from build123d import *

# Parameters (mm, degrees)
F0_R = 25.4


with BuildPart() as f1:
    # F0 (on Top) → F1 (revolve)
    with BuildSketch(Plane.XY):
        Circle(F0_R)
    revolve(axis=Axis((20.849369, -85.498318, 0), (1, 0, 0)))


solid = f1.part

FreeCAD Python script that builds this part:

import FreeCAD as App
import Part
import Sketcher
from FreeCAD import Vector
Q = App.Units.Quantity

doc = App.newDocument("Part")
body = doc.addObject("PartDesign::Body", "Body")

# Sketch on XY plane
sketch1 = body.newObject("Sketcher::SketchObject", "Sketch")
sketch1.AttachmentSupport = (doc.getObject("XY_Plane"), [""])
sketch1.MapMode = "FlatFace"
sketch1.addGeometry(Part.Circle(Vector(0, 0, 0), Vector(0, 0, 1), 25), False)
sketch1.addGeometry(Part.LineSegment(Vector(0, -85, 0), Vector(10, -85, 0)), True)  # axis
sketch1.addConstraint([
    Sketcher.Constraint("Horizontal", 1),
    Sketcher.Constraint("Coincident", 0, 3, -1, 1),
    Sketcher.Constraint("PointOnObject", 1, 1, -2),
    Sketcher.Constraint("Diameter", 0, Q("2 in")),
    Sketcher.Constraint("DistanceX", 1, 1, 1, 2, 10.0),
    Sketcher.Constraint("DistanceY", 1, 1, -1, 1, 85.498318),
])
revolution = body.newObject("PartDesign::Revolution", "Revolution")
revolution.Profile = sketch1
revolution.ReferenceAxis = (sketch1, ["Axis0"])
revolution.Angle = 360

doc.recompute()
